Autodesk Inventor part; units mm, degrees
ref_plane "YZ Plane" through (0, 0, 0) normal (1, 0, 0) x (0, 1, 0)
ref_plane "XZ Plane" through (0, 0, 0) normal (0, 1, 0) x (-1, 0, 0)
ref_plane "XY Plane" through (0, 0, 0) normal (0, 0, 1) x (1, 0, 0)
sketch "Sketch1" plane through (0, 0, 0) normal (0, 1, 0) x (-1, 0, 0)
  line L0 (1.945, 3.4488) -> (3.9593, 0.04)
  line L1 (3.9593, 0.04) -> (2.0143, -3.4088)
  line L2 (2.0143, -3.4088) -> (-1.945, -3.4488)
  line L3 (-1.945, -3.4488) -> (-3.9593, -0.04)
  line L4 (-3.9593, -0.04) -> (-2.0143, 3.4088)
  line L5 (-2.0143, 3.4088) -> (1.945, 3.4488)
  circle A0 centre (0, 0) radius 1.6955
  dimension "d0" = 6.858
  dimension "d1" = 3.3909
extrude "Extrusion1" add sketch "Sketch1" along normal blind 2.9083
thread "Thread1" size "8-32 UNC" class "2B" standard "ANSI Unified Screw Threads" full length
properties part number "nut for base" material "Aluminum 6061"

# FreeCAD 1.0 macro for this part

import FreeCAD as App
import Part
import Sketcher
Q = App.Units.Quantity

doc = App.newDocument("Part")
body = doc.addObject("PartDesign::Body", "Body")

# Sketch on XZ plane
sketch1 = doc.addObject("Sketcher::SketchObject", "Sketch")
body.addObject(sketch1)
sketch1.AttachmentSupport = (doc.XZ_Plane, [""])
sketch1.MapMode = "FlatFace"
sketch1.addGeometry(Part.LineSegment(App.Vector(-4, 0, 0), App.Vector(-1.9, 3.4, 0)), False)
sketch1.addGeometry(Part.LineSegment(App.Vector(-1.9, 3.4, 0), App.Vector(2, 3.4, 0)), False)
sketch1.addGeometry(Part.LineSegment(App.Vector(2, 3.4, 0), App.Vector(4, 0, 0)), False)
sketch1.addGeometry(Part.LineSegment(App.Vector(4, 0, 0), App.Vector(1.9, -3.4, 0)), False)
sketch1.addGeometry(Part.LineSegment(App.Vector(1.9, -3.4, 0), App.Vector(-2, -3.4, 0)), False)
sketch1.addGeometry(Part.LineSegment(App.Vector(-2, -3.4, 0), App.Vector(-4, 0, 0)), False)
sketch1.addGeometry(Part.Circle(App.Vector(0, 0, 0), App.Vector(0, 0, 1), 1.7), False)
sketch1.addConstraint(Sketcher.Constraint("Coincident", 0, 2, 1, 1))
sketch1.addConstraint(Sketcher.Constraint("Coincident", 1, 2, 2, 1))
sketch1.addConstraint(Sketcher.Constraint("Coincident", 2, 2, 3, 1))
sketch1.addConstraint(Sketcher.Constraint("Coincident", 3, 2, 4, 1))
sketch1.addConstraint(Sketcher.Constraint("Coincident", 4, 2, 5, 1))
sketch1.addConstraint(Sketcher.Constraint("Coincident", 5, 2, 0, 1))
sketch1.addConstraint(Sketcher.Constraint("Coincident", 6, 3, -1, 1))
sketch1.addConstraint(Sketcher.Constraint("Symmetric", 0, 2, 3, 2, -1, 1))
sketch1.addConstraint(Sketcher.Constraint("Symmetric", 1, 2, 4, 2, -1, 1))
sketch1.addConstraint(Sketcher.Constraint("Symmetric", 2, 2, 5, 2, -1, 1))
sketch1.addConstraint(Sketcher.Constraint("Equal", 0, 1))
sketch1.addConstraint(Sketcher.Constraint("Equal", 1, 2))
sketch1.addConstraint(Sketcher.Constraint("Diameter", 6, 3.391))
sketch1.addConstraint(Sketcher.Constraint("Angle", 0, Q("59.4207 deg")))
sketch1.addConstraint(Sketcher.Constraint("Angle", 1, Q("-0.5788 deg")))
sketch1.addConstraint(Sketcher.Constraint("DistanceY", 3, 2, 1, 2, 6.8576))
sketch1.addConstraint(Sketcher.Constraint("DistanceY", 2, 2, -1, 1, 0.04))
pad1 = doc.addObject("PartDesign::Pad", "Pad")
body.addObject(pad1)
pad1.Profile = sketch1
pad1.Length = 2.9083
pad1.Reversed = True

doc.recompute()
